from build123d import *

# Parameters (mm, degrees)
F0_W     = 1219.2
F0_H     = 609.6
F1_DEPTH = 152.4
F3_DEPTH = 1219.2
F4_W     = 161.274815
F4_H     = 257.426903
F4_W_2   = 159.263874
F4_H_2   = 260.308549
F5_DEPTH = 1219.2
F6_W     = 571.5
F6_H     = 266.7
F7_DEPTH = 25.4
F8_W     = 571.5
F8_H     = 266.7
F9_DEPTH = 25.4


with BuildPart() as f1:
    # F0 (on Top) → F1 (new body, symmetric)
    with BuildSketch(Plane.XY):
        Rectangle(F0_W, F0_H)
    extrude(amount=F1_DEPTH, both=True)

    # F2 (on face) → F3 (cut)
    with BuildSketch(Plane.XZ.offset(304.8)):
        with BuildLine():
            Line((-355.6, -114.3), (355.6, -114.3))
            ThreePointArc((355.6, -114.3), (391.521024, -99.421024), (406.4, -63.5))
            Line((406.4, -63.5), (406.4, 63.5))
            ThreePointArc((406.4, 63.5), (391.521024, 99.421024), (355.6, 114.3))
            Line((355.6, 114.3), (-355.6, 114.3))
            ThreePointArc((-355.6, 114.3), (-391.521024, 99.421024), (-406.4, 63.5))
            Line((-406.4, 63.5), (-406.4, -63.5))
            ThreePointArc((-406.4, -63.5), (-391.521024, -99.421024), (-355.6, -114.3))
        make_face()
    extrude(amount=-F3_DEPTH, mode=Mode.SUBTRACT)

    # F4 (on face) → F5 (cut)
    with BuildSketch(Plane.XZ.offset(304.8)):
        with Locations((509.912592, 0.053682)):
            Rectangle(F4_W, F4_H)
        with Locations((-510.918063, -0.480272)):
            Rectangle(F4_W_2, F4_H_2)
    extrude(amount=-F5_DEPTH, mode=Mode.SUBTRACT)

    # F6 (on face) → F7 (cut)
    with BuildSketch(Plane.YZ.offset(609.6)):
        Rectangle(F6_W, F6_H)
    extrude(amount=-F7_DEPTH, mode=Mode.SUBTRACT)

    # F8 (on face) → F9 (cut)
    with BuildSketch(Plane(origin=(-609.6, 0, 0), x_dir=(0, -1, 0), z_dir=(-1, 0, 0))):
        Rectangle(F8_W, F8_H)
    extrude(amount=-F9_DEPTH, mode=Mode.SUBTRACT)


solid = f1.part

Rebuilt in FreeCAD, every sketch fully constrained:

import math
import FreeCAD as App
import Part
import Sketcher

V = App.Vector
Q = App.Units.Quantity

doc = App.newDocument("Part")
body = doc.addObject("PartDesign::Body", "Body")

# Sketch on XY plane
sketch1 = body.newObject("Sketcher::SketchObject", "Sketch")
sketch1.AttachmentSupport = (doc.getObject("XY_Plane"), [""])
sketch1.MapMode = "FlatFace"
sketch1.addGeometry([
    Part.LineSegment(V(-610, 305, 0), V(-610, -305, 0)),
    Part.LineSegment(V(-610, -305, 0), V(610, -305, 0)),
    Part.LineSegment(V(610, -305, 0), V(610, 305, 0)),
    Part.LineSegment(V(610, 305, 0), V(-610, 305, 0)),
], False)
sketch1.addConstraint([
    Sketcher.Constraint("Coincident", 0, 2, 1, 1),
    Sketcher.Constraint("Coincident", 1, 2, 2, 1),
    Sketcher.Constraint("Coincident", 2, 2, 3, 1),
    Sketcher.Constraint("Coincident", 3, 2, 0, 1),
    Sketcher.Constraint("Vertical", 0),
    Sketcher.Constraint("Horizontal", 1),
    Sketcher.Constraint("Vertical", 2),
    Sketcher.Constraint("Horizontal", 3),
    Sketcher.Constraint("Symmetric", 0, 2, 2, 2, -1, 1),
    Sketcher.Constraint("DistanceX", 1, 1, 1, 2, Q("48 in")),
    Sketcher.Constraint("DistanceY", 0, 2, 0, 1, Q("24 in")),
])
pad1 = body.newObject("PartDesign::Pad", "Pad")
pad1.Profile = sketch1
pad1.Length = Q("12 in")
pad1.Midplane = True

# Sketch on XZ plane
sketch2 = body.newObject("Sketcher::SketchObject", "Sketch001")
sketch2.AttachmentSupport = (doc.getObject("XZ_Plane"), [""])
sketch2.MapMode = "FlatFace"
sketch2.AttachmentOffset = App.Placement(V(0, 0, 12 * 25.4), App.Rotation())
sketch2.addGeometry([
    Part.LineSegment(V(-356, -114, 0), V(356, -114, 0)),  # 0
    Part.ArcOfCircle(Part.Circle(V(356, -63, 0), V(0, 0, 1), 51), math.radians(-90), math.radians(0)),  # 1
    Part.LineSegment(V(406, -64, 0), V(406, 64, 0)),  # 2
    Part.ArcOfCircle(Part.Circle(V(356, 63, 0), V(0, 0, 1), 51), math.radians(0), math.radians(90)),  # 3
    Part.LineSegment(V(356, 114, 0), V(-356, 114, 0)),  # 4
    Part.ArcOfCircle(Part.Circle(V(-356, 63, 0), V(0, 0, 1), 51), math.radians(90), math.radians(180)),  # 5
    Part.LineSegment(V(-406, 64, 0), V(-406, -64, 0)),  # 6
    Part.ArcOfCircle(Part.Circle(V(-356, -63, 0), V(0, 0, 1), 51), math.radians(-180), math.radians(-90)),  # 7
], False)
sketch2.addConstraint([
    Sketcher.Constraint("Tangent", 0, 2, 1, 1),
    Sketcher.Constraint("Tangent", 1, 2, 2, 1),
    Sketcher.Constraint("Tangent", 2, 2, 3, 1),
    Sketcher.Constraint("Tangent", 3, 2, 4, 1),
    Sketcher.Constraint("Tangent", 4, 2, 5, 1),
    Sketcher.Constraint("Tangent", 5, 2, 6, 1),
    Sketcher.Constraint("Tangent", 6, 2, 7, 1),
    Sketcher.Constraint("Tangent", 7, 2, 0, 1),
    Sketcher.Constraint("Horizontal", 0),
    Sketcher.Constraint("Vertical", 2),
    Sketcher.Constraint("Horizontal", 4),
    Sketcher.Constraint("Vertical", 6),
    Sketcher.Constraint("Equal", 1, 3),
    Sketcher.Constraint("Equal", 3, 5),
    Sketcher.Constraint("Equal", 5, 7),
    Sketcher.Constraint("Symmetric", 1, 3, 5, 3, -1, 1),
    Sketcher.Constraint("Radius", 1, Q("2.0000001 in")),
    Sketcher.Constraint("DistanceX", 0, 1, 0, 2, Q("28 in")),
    Sketcher.Constraint("DistanceY", 2, 1, 2, 2, Q("5 in")),
])
pocket1 = body.newObject("PartDesign::Pocket", "Pocket")
pocket1.Profile = sketch2
pocket1.Length = Q("48 in")

# Sketch on XZ plane
sketch3 = body.newObject("Sketcher::SketchObject", "Sketch002")
sketch3.AttachmentSupport = (doc.getObject("XZ_Plane"), [""])
sketch3.MapMode = "FlatFace"
sketch3.AttachmentOffset = App.Placement(V(0, 0, 12 * 25.4), App.Rotation())
sketch3.addGeometry([
    Part.LineSegment(V(429, 129, 0), V(429, -129, 0)),  # 0
    Part.LineSegment(V(429, -129, 0), V(591, -129, 0)),  # 1
    Part.LineSegment(V(591, -129, 0), V(591, 129, 0)),  # 2
    Part.LineSegment(V(591, 129, 0), V(429, 129, 0)),  # 3
    Part.LineSegment(V(-591, 130, 0), V(-591, -131, 0)),  # 4
    Part.LineSegment(V(-591, -131, 0), V(-431, -131, 0)),  # 5
    Part.LineSegment(V(-431, -131, 0), V(-431, 130, 0)),  # 6
    Part.LineSegment(V(-431, 130, 0), V(-591, 130, 0)),  # 7
], False)
sketch3.addConstraint([
    Sketcher.Constraint("Coincident", 0, 2, 1, 1),
    Sketcher.Constraint("Coincident", 1, 2, 2, 1),
    Sketcher.Constraint("Coincident", 2, 2, 3, 1),
    Sketcher.Constraint("Coincident", 3, 2, 0, 1),
    Sketcher.Constraint("Coincident", 4, 2, 5, 1),
    Sketcher.Constraint("Coincident", 5, 2, 6, 1),
    Sketcher.Constraint("Coincident", 6, 2, 7, 1),
    Sketcher.Constraint("Coincident", 7, 2, 4, 1),
    Sketcher.Constraint("Vertical", 0),
    Sketcher.Constraint("Horizontal", 1),
    Sketcher.Constraint("Vertical", 2),
    Sketcher.Constraint("Horizontal", 3),
    Sketcher.Constraint("Vertical", 4),
    Sketcher.Constraint("Horizontal", 5),
    Sketcher.Constraint("Vertical", 6),
    Sketcher.Constraint("Horizontal", 7),
    Sketcher.Constraint("DistanceX", 4, 2, 1, 2, Q("46.5 in")),
    Sketcher.Constraint("DistanceX", -1, 1, 1, 2, Q("23.25 in")),
    Sketcher.Constraint("DistanceY", 4, 2, 4, 1, 260.308549),
    Sketcher.Constraint("DistanceX", 1, 1, 1, 2, 161.274815),
    Sketcher.Constraint("DistanceX", 5, 1, 5, 2, 159.263874),
    Sketcher.Constraint("DistanceY", 0, 2, 0, 1, 257.426903),
    Sketcher.Constraint("DistanceY", 0, 2, -1, 1, 128.65977),
    Sketcher.Constraint("DistanceY", 4, 2, 3, 2, 259.40168),
])
pocket2 = body.newObject("PartDesign::Pocket", "Pocket001")
pocket2.Profile = sketch3
pocket2.Length = Q("48 in")

# Sketch on YZ plane
sketch4 = body.newObject("Sketcher::SketchObject", "Sketch003")
sketch4.AttachmentSupport = (doc.getObject("YZ_Plane"), [""])
sketch4.MapMode = "FlatFace"
sketch4.AttachmentOffset = App.Placement(V(0, 0, 24 * 25.4), App.Rotation())
sketch4.addGeometry([
    Part.LineSegment(V(-286, 133, 0), V(-286, -133, 0)),
    Part.LineSegment(V(-286, -133, 0), V(286, -133, 0)),
    Part.LineSegment(V(286, -133, 0), V(286, 133, 0)),
    Part.LineSegment(V(286, 133, 0), V(-286, 133, 0)),
], False)
sketch4.addConstraint([
    Sketcher.Constraint("Coincident", 0, 2, 1, 1),
    Sketcher.Constraint("Coincident", 1, 2, 2, 1),
    Sketcher.Constraint("Coincident", 2, 2, 3, 1),
    Sketcher.Constraint("Coincident", 3, 2, 0, 1),
    Sketcher.Constraint("Vertical", 0),
    Sketcher.Constraint("Horizontal", 1),
    Sketcher.Constraint("Vertical", 2),
    Sketcher.Constraint("Horizontal", 3),
    Sketcher.Constraint("Symmetric", 0, 2, 2, 2, -1, 1),
    Sketcher.Constraint("DistanceX", 1, 1, 1, 2, Q("22.5 in")),
    Sketcher.Constraint("DistanceY", 0, 2, 0, 1, Q("10.5 in")),
])
pocket3 = body.newObject("PartDesign::Pocket", "Pocket002")
pocket3.Profile = sketch4
pocket3.Length = Q("1 in")

# Sketch on YZ plane
sketch5 = body.newObject("Sketcher::SketchObject", "Sketch004")
sketch5.AttachmentSupport = (doc.getObject("YZ_Plane"), [""])
sketch5.MapMode = "FlatFace"
sketch5.AttachmentOffset = App.Placement(V(0, 0, -24 * 25.4), App.Rotation())
sketch5.addGeometry([
    Part.LineSegment(V(286, 133, 0), V(286, -133, 0)),
    Part.LineSegment(V(286, -133, 0), V(-286, -133, 0)),
    Part.LineSegment(V(-286, -133, 0), V(-286, 133, 0)),
    Part.LineSegment(V(-286, 133, 0), V(286, 133, 0)),
], False)
sketch5.addConstraint([
    Sketcher.Constraint("Coincident", 0, 2, 1, 1),
    Sketcher.Constraint("Coincident", 1, 2, 2, 1),
    Sketcher.Constraint("Coincident", 2, 2, 3, 1),
    Sketcher.Constraint("Coincident", 3, 2, 0, 1),
    Sketcher.Constraint("Vertical", 0),
    Sketcher.Constraint("Horizontal", 1),
    Sketcher.Constraint("Vertical", 2),
    Sketcher.Constraint("Horizontal", 3),
    Sketcher.Constraint("Symmetric", 0, 2, 2, 2, -1, 1),
    Sketcher.Constraint("DistanceX", 1, 2, 1, 1, Q("22.5 in")),
    Sketcher.Constraint("DistanceY", 0, 2, 0, 1, Q("10.5 in")),
])
pocket4 = body.newObject("PartDesign::Pocket", "Pocket003")
pocket4.Profile = sketch5
pocket4.Length = Q("1 in")
pocket4.Reversed = True

doc.recompute()
